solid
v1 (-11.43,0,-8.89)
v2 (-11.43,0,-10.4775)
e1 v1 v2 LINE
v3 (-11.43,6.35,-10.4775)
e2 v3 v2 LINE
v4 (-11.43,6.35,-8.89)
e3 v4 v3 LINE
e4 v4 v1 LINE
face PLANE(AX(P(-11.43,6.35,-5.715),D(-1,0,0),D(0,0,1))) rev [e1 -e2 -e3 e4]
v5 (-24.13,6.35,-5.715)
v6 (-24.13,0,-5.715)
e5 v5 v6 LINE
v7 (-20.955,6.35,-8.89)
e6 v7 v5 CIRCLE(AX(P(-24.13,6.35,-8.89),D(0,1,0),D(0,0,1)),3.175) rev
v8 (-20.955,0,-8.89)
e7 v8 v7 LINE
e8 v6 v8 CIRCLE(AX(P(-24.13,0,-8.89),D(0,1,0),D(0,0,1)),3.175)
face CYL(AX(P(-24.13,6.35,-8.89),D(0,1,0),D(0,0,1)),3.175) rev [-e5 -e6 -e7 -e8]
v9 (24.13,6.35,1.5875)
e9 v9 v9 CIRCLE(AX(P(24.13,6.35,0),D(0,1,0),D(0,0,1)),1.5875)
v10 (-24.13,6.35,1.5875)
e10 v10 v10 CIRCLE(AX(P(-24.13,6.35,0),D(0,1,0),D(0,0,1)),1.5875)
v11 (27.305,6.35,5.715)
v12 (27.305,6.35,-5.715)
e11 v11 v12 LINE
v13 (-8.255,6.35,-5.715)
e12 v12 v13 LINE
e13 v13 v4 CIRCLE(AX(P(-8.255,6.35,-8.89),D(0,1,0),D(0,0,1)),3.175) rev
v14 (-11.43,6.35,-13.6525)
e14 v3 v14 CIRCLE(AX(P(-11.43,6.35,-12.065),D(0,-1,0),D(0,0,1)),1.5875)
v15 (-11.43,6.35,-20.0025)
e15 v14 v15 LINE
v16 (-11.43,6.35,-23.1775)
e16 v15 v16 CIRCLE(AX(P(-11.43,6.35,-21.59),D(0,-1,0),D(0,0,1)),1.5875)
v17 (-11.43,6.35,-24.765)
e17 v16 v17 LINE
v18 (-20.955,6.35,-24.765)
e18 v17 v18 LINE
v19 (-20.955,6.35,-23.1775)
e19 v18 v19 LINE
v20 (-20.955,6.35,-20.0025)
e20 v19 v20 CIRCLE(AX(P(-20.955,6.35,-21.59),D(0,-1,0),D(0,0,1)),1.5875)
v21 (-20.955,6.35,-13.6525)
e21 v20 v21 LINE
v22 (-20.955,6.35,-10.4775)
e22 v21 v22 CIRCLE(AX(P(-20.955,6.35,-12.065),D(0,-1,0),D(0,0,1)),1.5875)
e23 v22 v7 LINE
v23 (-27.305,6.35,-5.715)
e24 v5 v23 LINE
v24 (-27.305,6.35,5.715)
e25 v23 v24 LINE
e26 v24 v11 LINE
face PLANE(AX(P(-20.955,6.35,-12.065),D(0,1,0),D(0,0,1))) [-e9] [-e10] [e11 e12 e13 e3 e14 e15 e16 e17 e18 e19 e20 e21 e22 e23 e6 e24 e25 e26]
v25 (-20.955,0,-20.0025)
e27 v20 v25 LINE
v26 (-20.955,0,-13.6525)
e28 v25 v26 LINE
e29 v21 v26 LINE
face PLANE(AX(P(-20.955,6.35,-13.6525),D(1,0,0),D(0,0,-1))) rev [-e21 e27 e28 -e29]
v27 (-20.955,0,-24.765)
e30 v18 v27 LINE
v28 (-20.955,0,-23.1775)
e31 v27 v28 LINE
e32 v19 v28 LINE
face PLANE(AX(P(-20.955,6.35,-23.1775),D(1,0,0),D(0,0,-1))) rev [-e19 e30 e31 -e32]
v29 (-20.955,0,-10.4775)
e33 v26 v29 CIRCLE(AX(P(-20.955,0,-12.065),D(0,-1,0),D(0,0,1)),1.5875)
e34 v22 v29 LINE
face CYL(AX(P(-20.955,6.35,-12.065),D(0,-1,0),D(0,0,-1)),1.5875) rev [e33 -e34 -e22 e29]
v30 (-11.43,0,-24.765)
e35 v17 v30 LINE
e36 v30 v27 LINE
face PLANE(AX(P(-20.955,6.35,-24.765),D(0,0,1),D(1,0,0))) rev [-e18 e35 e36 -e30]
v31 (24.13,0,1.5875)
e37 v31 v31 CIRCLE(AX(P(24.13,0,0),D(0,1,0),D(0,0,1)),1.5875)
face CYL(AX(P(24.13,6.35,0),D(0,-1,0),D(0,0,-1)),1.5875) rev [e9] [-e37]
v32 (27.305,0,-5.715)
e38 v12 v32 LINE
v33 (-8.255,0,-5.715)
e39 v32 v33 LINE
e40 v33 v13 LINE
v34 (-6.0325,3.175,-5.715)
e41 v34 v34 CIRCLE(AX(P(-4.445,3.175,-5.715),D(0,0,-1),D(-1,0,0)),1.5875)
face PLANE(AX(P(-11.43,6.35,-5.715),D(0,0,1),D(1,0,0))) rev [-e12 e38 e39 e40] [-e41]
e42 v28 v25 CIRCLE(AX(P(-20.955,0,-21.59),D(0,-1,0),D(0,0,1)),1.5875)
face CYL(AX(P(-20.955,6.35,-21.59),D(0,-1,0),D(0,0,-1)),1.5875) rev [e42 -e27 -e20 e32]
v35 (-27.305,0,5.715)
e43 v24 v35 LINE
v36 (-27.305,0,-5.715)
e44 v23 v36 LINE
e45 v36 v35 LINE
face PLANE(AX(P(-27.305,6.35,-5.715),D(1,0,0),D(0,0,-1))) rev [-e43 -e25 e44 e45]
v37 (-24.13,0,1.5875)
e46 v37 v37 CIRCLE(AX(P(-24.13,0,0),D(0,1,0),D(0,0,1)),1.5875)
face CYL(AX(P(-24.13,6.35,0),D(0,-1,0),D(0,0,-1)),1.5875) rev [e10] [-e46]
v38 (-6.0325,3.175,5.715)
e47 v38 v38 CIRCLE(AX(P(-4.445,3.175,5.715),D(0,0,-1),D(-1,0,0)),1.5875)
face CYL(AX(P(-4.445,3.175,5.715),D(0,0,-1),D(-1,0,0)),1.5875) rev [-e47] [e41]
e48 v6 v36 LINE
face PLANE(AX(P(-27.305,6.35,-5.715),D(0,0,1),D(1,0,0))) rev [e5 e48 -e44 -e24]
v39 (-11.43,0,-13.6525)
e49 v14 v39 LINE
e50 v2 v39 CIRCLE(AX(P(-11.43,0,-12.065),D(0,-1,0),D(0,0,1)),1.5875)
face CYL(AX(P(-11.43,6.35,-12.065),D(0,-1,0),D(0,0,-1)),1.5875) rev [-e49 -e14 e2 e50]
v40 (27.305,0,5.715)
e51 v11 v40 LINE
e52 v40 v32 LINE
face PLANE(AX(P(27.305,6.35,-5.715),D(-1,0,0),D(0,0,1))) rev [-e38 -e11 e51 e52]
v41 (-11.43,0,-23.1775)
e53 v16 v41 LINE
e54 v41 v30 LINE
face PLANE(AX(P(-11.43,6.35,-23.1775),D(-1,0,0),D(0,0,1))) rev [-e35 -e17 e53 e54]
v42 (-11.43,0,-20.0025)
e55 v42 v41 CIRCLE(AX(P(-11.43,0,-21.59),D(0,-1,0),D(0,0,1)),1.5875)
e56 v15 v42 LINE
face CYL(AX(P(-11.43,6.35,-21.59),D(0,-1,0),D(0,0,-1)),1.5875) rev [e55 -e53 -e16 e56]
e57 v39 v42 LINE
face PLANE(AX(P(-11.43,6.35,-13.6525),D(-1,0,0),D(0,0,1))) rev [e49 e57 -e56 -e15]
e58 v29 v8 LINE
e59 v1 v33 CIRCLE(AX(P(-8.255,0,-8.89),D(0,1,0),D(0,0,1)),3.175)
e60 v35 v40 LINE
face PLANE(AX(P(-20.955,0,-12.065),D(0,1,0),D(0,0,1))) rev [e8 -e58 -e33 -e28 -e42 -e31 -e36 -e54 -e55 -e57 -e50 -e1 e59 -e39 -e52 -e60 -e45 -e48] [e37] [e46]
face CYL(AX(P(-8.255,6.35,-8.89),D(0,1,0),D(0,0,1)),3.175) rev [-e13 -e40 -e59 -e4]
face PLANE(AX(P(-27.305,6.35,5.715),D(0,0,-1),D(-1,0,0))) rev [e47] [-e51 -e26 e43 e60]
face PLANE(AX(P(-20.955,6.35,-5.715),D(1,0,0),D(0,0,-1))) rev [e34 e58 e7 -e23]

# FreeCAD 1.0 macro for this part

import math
import FreeCAD as App
import Part
import Sketcher

V = App.Vector
Q = App.Units.Quantity


def edges_at(feature, points):
    """Names of the edges that pass closest to the given points."""
    edges = feature.Shape.Edges
    near = lambda p: min(range(len(edges)), key=lambda i: edges[i].distToShape(Part.Vertex(*p))[0])
    return sorted({f"Edge{near(p) + 1}" for p in points})

doc = App.newDocument("Part")
body = doc.addObject("PartDesign::Body", "Body")

# Sketch on XZ plane
sketch1 = body.newObject("Sketcher::SketchObject", "Sketch")
sketch1.AttachmentSupport = (doc.getObject("XZ_Plane"), [""])
sketch1.MapMode = "FlatFace"
sketch1.addGeometry([
    Part.LineSegment(V(-20.955, -5.715, 0), V(-27.305, -5.715, 0)),  # 0
    Part.LineSegment(V(-27.305, -5.715, 0), V(-27.305, 5.715, 0)),  # 1
    Part.LineSegment(V(-27.305, 5.715, 0), V(27.305, 5.715, 0)),  # 2
    Part.LineSegment(V(27.305, 5.715, 0), V(27.305, -5.715, 0)),  # 3
    Part.LineSegment(V(27.305, -5.715, 0), V(-11.43, -5.715, 0)),  # 4
    Part.LineSegment(V(-11.43, -5.715, 0), V(-11.43, -10.4775, 0)),  # 5
    Part.ArcOfCircle(Part.Circle(V(-11.43, -12.065, 0), V(0, 0, 1), 1.5875), math.radians(90), math.radians(270)),  # 6
    Part.LineSegment(V(-11.43, -13.6525, 0), V(-11.43, -20.0025, 0)),  # 7
    Part.ArcOfCircle(Part.Circle(V(-11.43, -21.59, 0), V(0, 0, 1), 1.5875), math.radians(90), math.radians(270)),  # 8
    Part.LineSegment(V(-11.43, -23.1775, 0), V(-11.43, -24.765, 0)),  # 9
    Part.LineSegment(V(-11.43, -24.765, 0), V(-20.955, -24.765, 0)),  # 10
    Part.LineSegment(V(-20.955, -24.765, 0), V(-20.955, -23.1775, 0)),  # 11
    Part.ArcOfCircle(Part.Circle(V(-20.955, -21.59, 0), V(0, 0, 1), 1.5875), math.radians(-90), math.radians(90)),  # 12
    Part.LineSegment(V(-20.955, -20.0025, 0), V(-20.955, -13.6525, 0)),  # 13
    Part.ArcOfCircle(Part.Circle(V(-20.955, -12.065, 0), V(0, 0, 1), 1.5875), math.radians(-90), math.radians(90)),  # 14
    Part.LineSegment(V(-20.955, -10.4775, 0), V(-20.955, -5.715, 0)),  # 15
    Part.Circle(V(24.13, 0, 0), V(0, 0, 1), 1.5875),  # 16
    Part.Circle(V(-24.13, 0, 0), V(0, 0, 1), 1.5875),  # 17
], False)
sketch1.addConstraint([
    Sketcher.Constraint("Coincident", 0, 2, 1, 1),
    Sketcher.Constraint("Coincident", 1, 2, 2, 1),
    Sketcher.Constraint("Coincident", 2, 2, 3, 1),
    Sketcher.Constraint("Coincident", 3, 2, 4, 1),
    Sketcher.Constraint("Coincident", 4, 2, 5, 1),
    Sketcher.Constraint("Coincident", 5, 2, 6, 1),
    Sketcher.Constraint("Coincident", 6, 2, 7, 1),
    Sketcher.Constraint("Coincident", 7, 2, 8, 1),
    Sketcher.Constraint("Coincident", 8, 2, 9, 1),
    Sketcher.Constraint("Coincident", 9, 2, 10, 1),
    Sketcher.Constraint("Coincident", 10, 2, 11, 1),
    Sketcher.Constraint("Coincident", 11, 2, 12, 1),
    Sketcher.Constraint("Coincident", 12, 2, 13, 1),
    Sketcher.Constraint("Coincident", 13, 2, 14, 1),
    Sketcher.Constraint("Coincident", 14, 2, 15, 1),
    Sketcher.Constraint("Coincident", 15, 2, 0, 1),
    Sketcher.Constraint("Horizontal", 0),
    Sketcher.Constraint("Vertical", 1),
    Sketcher.Constraint("Horizontal", 2),
    Sketcher.Constraint("Vertical", 3),
    Sketcher.Constraint("Horizontal", 4),
    Sketcher.Constraint("Vertical", 5),
    Sketcher.Constraint("Vertical", 7),
    Sketcher.Constraint("Vertical", 9),
    Sketcher.Constraint("Horizontal", 10),
    Sketcher.Constraint("Vertical", 11),
    Sketcher.Constraint("Vertical", 13),
    Sketcher.Constraint("Vertical", 15),
    Sketcher.Constraint("Equal", 6, 8),
    Sketcher.Constraint("Equal", 8, 12),
    Sketcher.Constraint("Equal", 12, 14),
    Sketcher.Constraint("Equal", 14, 16),
    Sketcher.Constraint("Equal", 16, 17),
    Sketcher.Constraint("Symmetric", 16, 3, 17, 3, -1, 1),
    Sketcher.Constraint("Symmetric", 0, 2, 2, 2, -1, 1),
    Sketcher.Constraint("PointOnObject", 16, 3, -1),
    Sketcher.Constraint("Horizontal", 8, 3, 12, 3),
    Sketcher.Constraint("Horizontal", 6, 3, 14, 3),
    Sketcher.Constraint("Horizontal", 0, 2, 3, 2),
    Sketcher.Constraint("Vertical", 6, 3, 8, 3),
    Sketcher.Constraint("Vertical", 12, 3, 14, 3),
    Sketcher.Constraint("Vertical", 8, 3, 4, 2),
    Sketcher.Constraint("Vertical", 5, 2, 6, 2),
    Sketcher.Constraint("Vertical", 7, 2, 8, 2),
    Sketcher.Constraint("Vertical", 14, 3, 10, 2),
    Sketcher.Constraint("Vertical", 11, 2, 12, 2),
    Sketcher.Constraint("Vertical", 13, 2, 14, 2),
    Sketcher.Constraint("Equal", 0, 7),
    Sketcher.Constraint("Diameter", 16, Q("0.125 in")),
    Sketcher.Constraint("DistanceX", 0, 2, 0, 1, Q("0.25 in")),
    Sketcher.Constraint("DistanceX", 2, 1, 2, 2, Q("2.15 in")),
    Sketcher.Constraint("DistanceY", 1, 1, 1, 2, Q("0.45 in")),
    Sketcher.Constraint("DistanceX", 6, 3, 16, 3, Q("1.4 in")),
    Sketcher.Constraint("DistanceX", 17, 3, 6, 3, Q("0.5 in")),
    Sketcher.Constraint("DistanceY", 14, 3, 1, 2, Q("0.7 in")),
    Sketcher.Constraint("DistanceY", 9, 2, 9, 1, Q("0.0625 in")),
])
pad1 = body.newObject("PartDesign::Pad", "Pad")
pad1.Profile = sketch1
pad1.Length = Q("0.25 in")
pad1.Reversed = True
doc.recompute()

fillet = body.newObject("PartDesign::Fillet", "Fillet")
fillet.Base = (pad1, edges_at(pad1, [(-20.955, 3.175, -5.715), (-11.43, 3.175, -5.715)]))
fillet.Radius = Q("0.125 in")

# Sketch on XY plane
sketch2 = body.newObject("Sketcher::SketchObject", "Sketch001")
sketch2.AttachmentSupport = (doc.getObject("XY_Plane"), [""])
sketch2.MapMode = "FlatFace"
sketch2.AttachmentOffset = App.Placement(V(0, 0, -0.225 * 25.4), App.Rotation())
sketch2.addGeometry(Part.Circle(V(-4.445, 3.175, 0), V(0, 0, 1), 1.5875), False)
sketch2.addConstraint([
    Sketcher.Constraint("Diameter", 0, Q("0.125 in")),
    Sketcher.Constraint("DistanceX", 0, 3, -1, 1, Q("0.175 in")),
    Sketcher.Constraint("DistanceY", -1, 1, 0, 3, Q("0.125 in")),
])
pocket1 = body.newObject("PartDesign::Pocket", "Pocket")
pocket1.Profile = sketch2
pocket1.Type = "ThroughAll"
pocket1.Reversed = True

doc.recompute()
